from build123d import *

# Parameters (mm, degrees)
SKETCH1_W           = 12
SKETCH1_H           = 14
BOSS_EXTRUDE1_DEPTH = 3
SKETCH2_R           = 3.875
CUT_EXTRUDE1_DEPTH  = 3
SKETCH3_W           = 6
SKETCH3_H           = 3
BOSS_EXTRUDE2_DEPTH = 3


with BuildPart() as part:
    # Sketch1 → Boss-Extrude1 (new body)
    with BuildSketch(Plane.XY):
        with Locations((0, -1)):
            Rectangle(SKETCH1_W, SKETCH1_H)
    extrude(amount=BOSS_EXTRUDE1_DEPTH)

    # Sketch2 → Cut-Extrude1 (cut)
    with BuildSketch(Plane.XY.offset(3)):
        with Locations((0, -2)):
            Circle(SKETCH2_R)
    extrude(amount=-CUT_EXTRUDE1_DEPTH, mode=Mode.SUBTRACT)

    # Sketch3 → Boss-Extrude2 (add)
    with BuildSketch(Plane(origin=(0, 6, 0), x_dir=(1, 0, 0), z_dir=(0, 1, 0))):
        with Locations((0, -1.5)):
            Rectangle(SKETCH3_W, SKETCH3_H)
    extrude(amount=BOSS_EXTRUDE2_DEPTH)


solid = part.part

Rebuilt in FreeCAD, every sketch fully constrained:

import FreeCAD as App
import Part
import Sketcher

doc = App.newDocument("Part")
params = doc.addObject("Spreadsheet::Sheet", "Params")
for row, (alias, value) in enumerate([
    ("sketch1_width", "12 mm"),
    ("sketch1_height", "14 mm"),
    ("pad1_length", "3 mm"),
    ("sketch2_diameter", "7.75 mm"),
    ("pocket1_length", "3 mm"),
    ("sketch3_width", "6 mm"),
    ("sketch3_height", "3 mm"),
    ("pad2_length", "3 mm"),
], start=1):
    params.set(f"A{row}", alias)
    params.set(f"B{row}", "=" + value)
    params.setAlias(f"B{row}", alias)

body = doc.addObject("PartDesign::Body", "Body")

# Sketch on XY plane
sketch1 = body.newObject("Sketcher::SketchObject", "Sketch")
sketch1.AttachmentSupport = (doc.getObject("XY_Plane"), [""])
sketch1.MapMode = "FlatFace"
sketch1.addGeometry([
    Part.LineSegment(App.Vector(-6, 6, 0), App.Vector(-6, -8, 0)),
    Part.LineSegment(App.Vector(-6, -8, 0), App.Vector(6, -8, 0)),
    Part.LineSegment(App.Vector(6, -8, 0), App.Vector(6, 6, 0)),
    Part.LineSegment(App.Vector(6, 6, 0), App.Vector(-6, 6, 0)),
], False)
sketch1.addConstraint([
    Sketcher.Constraint("Coincident", 0, 2, 1, 1),
    Sketcher.Constraint("Coincident", 1, 2, 2, 1),
    Sketcher.Constraint("Coincident", 2, 2, 3, 1),
    Sketcher.Constraint("Coincident", 3, 2, 0, 1),
    Sketcher.Constraint("Vertical", 0),
    Sketcher.Constraint("Horizontal", 1),
    Sketcher.Constraint("Vertical", 2),
    Sketcher.Constraint("Horizontal", 3),
    Sketcher.Constraint("DistanceX", 1, 1, 1, 2, 12.0),
    Sketcher.Constraint("DistanceY", 0, 2, 0, 1, 14.0),
    Sketcher.Constraint("DistanceX", 0, 2, -1, 1, 6.0),
    Sketcher.Constraint("DistanceY", 0, 2, -1, 1, 8.0),
])
sketch1.setExpression("Constraints[8]", "Params.sketch1_width")
sketch1.setExpression("Constraints[9]", "Params.sketch1_height")
pad1 = body.newObject("PartDesign::Pad", "Pad")
pad1.Profile = sketch1
pad1.setExpression("Length", "Params.pad1_length")

# Sketch on XY plane
sketch2 = body.newObject("Sketcher::SketchObject", "Sketch001")
sketch2.AttachmentSupport = (doc.getObject("XY_Plane"), [""])
sketch2.MapMode = "FlatFace"
sketch2.AttachmentOffset = App.Placement(App.Vector(0, 0, 3), App.Rotation())
sketch2.addGeometry(Part.Circle(App.Vector(0, -2, 0), App.Vector(0, 0, 1), 3.875), False)
sketch2.addConstraint([
    Sketcher.Constraint("PointOnObject", 0, 3, -2),
    Sketcher.Constraint("Diameter", 0, 7.75),
    Sketcher.Constraint("DistanceY", 0, 3, -1, 1, 2.0),
])
sketch2.setExpression("Constraints[1]", "Params.sketch2_diameter")
pocket1 = body.newObject("PartDesign::Pocket", "Pocket")
pocket1.Profile = sketch2
pocket1.setExpression("Length", "Params.pocket1_length")

# Sketch on XZ plane
sketch3 = body.newObject("Sketcher::SketchObject", "Sketch002")
sketch3.AttachmentSupport = (doc.getObject("XZ_Plane"), [""])
sketch3.MapMode = "FlatFace"
sketch3.AttachmentOffset = App.Placement(App.Vector(0, 0, -6), App.Rotation())
sketch3.addGeometry([
    Part.LineSegment(App.Vector(-3, 0, 0), App.Vector(-3, 3, 0)),
    Part.LineSegment(App.Vector(-3, 3, 0), App.Vector(3, 3, 0)),
    Part.LineSegment(App.Vector(3, 3, 0), App.Vector(3, 0, 0)),
    Part.LineSegment(App.Vector(3, 0, 0), App.Vector(-3, 0, 0)),
], False)
sketch3.addConstraint([
    Sketcher.Constraint("Coincident", 0, 2, 1, 1),
    Sketcher.Constraint("Coincident", 1, 2, 2, 1),
    Sketcher.Constraint("Coincident", 2, 2, 3, 1),
    Sketcher.Constraint("Coincident", 3, 2, 0, 1),
    Sketcher.Constraint("Vertical", 0),
    Sketcher.Constraint("Horizontal", 1),
    Sketcher.Constraint("Vertical", 2),
    Sketcher.Constraint("Horizontal", 3),
    Sketcher.Constraint("Symmetric", 2, 2, 3, 2, -1, 1),
    Sketcher.Constraint("DistanceX", 1, 1, 1, 2, 6.0),
    Sketcher.Constraint("DistanceY", 0, 1, 0, 2, 3.0),
])
sketch3.setExpression("Constraints[9]", "Params.sketch3_width")
sketch3.setExpression("Constraints[10]", "Params.sketch3_height")
pad2 = body.newObject("PartDesign::Pad", "Pad001")
pad2.Profile = sketch3
pad2.setExpression("Length", "Params.pad2_length")
pad2.Reversed = True

doc.recompute()
